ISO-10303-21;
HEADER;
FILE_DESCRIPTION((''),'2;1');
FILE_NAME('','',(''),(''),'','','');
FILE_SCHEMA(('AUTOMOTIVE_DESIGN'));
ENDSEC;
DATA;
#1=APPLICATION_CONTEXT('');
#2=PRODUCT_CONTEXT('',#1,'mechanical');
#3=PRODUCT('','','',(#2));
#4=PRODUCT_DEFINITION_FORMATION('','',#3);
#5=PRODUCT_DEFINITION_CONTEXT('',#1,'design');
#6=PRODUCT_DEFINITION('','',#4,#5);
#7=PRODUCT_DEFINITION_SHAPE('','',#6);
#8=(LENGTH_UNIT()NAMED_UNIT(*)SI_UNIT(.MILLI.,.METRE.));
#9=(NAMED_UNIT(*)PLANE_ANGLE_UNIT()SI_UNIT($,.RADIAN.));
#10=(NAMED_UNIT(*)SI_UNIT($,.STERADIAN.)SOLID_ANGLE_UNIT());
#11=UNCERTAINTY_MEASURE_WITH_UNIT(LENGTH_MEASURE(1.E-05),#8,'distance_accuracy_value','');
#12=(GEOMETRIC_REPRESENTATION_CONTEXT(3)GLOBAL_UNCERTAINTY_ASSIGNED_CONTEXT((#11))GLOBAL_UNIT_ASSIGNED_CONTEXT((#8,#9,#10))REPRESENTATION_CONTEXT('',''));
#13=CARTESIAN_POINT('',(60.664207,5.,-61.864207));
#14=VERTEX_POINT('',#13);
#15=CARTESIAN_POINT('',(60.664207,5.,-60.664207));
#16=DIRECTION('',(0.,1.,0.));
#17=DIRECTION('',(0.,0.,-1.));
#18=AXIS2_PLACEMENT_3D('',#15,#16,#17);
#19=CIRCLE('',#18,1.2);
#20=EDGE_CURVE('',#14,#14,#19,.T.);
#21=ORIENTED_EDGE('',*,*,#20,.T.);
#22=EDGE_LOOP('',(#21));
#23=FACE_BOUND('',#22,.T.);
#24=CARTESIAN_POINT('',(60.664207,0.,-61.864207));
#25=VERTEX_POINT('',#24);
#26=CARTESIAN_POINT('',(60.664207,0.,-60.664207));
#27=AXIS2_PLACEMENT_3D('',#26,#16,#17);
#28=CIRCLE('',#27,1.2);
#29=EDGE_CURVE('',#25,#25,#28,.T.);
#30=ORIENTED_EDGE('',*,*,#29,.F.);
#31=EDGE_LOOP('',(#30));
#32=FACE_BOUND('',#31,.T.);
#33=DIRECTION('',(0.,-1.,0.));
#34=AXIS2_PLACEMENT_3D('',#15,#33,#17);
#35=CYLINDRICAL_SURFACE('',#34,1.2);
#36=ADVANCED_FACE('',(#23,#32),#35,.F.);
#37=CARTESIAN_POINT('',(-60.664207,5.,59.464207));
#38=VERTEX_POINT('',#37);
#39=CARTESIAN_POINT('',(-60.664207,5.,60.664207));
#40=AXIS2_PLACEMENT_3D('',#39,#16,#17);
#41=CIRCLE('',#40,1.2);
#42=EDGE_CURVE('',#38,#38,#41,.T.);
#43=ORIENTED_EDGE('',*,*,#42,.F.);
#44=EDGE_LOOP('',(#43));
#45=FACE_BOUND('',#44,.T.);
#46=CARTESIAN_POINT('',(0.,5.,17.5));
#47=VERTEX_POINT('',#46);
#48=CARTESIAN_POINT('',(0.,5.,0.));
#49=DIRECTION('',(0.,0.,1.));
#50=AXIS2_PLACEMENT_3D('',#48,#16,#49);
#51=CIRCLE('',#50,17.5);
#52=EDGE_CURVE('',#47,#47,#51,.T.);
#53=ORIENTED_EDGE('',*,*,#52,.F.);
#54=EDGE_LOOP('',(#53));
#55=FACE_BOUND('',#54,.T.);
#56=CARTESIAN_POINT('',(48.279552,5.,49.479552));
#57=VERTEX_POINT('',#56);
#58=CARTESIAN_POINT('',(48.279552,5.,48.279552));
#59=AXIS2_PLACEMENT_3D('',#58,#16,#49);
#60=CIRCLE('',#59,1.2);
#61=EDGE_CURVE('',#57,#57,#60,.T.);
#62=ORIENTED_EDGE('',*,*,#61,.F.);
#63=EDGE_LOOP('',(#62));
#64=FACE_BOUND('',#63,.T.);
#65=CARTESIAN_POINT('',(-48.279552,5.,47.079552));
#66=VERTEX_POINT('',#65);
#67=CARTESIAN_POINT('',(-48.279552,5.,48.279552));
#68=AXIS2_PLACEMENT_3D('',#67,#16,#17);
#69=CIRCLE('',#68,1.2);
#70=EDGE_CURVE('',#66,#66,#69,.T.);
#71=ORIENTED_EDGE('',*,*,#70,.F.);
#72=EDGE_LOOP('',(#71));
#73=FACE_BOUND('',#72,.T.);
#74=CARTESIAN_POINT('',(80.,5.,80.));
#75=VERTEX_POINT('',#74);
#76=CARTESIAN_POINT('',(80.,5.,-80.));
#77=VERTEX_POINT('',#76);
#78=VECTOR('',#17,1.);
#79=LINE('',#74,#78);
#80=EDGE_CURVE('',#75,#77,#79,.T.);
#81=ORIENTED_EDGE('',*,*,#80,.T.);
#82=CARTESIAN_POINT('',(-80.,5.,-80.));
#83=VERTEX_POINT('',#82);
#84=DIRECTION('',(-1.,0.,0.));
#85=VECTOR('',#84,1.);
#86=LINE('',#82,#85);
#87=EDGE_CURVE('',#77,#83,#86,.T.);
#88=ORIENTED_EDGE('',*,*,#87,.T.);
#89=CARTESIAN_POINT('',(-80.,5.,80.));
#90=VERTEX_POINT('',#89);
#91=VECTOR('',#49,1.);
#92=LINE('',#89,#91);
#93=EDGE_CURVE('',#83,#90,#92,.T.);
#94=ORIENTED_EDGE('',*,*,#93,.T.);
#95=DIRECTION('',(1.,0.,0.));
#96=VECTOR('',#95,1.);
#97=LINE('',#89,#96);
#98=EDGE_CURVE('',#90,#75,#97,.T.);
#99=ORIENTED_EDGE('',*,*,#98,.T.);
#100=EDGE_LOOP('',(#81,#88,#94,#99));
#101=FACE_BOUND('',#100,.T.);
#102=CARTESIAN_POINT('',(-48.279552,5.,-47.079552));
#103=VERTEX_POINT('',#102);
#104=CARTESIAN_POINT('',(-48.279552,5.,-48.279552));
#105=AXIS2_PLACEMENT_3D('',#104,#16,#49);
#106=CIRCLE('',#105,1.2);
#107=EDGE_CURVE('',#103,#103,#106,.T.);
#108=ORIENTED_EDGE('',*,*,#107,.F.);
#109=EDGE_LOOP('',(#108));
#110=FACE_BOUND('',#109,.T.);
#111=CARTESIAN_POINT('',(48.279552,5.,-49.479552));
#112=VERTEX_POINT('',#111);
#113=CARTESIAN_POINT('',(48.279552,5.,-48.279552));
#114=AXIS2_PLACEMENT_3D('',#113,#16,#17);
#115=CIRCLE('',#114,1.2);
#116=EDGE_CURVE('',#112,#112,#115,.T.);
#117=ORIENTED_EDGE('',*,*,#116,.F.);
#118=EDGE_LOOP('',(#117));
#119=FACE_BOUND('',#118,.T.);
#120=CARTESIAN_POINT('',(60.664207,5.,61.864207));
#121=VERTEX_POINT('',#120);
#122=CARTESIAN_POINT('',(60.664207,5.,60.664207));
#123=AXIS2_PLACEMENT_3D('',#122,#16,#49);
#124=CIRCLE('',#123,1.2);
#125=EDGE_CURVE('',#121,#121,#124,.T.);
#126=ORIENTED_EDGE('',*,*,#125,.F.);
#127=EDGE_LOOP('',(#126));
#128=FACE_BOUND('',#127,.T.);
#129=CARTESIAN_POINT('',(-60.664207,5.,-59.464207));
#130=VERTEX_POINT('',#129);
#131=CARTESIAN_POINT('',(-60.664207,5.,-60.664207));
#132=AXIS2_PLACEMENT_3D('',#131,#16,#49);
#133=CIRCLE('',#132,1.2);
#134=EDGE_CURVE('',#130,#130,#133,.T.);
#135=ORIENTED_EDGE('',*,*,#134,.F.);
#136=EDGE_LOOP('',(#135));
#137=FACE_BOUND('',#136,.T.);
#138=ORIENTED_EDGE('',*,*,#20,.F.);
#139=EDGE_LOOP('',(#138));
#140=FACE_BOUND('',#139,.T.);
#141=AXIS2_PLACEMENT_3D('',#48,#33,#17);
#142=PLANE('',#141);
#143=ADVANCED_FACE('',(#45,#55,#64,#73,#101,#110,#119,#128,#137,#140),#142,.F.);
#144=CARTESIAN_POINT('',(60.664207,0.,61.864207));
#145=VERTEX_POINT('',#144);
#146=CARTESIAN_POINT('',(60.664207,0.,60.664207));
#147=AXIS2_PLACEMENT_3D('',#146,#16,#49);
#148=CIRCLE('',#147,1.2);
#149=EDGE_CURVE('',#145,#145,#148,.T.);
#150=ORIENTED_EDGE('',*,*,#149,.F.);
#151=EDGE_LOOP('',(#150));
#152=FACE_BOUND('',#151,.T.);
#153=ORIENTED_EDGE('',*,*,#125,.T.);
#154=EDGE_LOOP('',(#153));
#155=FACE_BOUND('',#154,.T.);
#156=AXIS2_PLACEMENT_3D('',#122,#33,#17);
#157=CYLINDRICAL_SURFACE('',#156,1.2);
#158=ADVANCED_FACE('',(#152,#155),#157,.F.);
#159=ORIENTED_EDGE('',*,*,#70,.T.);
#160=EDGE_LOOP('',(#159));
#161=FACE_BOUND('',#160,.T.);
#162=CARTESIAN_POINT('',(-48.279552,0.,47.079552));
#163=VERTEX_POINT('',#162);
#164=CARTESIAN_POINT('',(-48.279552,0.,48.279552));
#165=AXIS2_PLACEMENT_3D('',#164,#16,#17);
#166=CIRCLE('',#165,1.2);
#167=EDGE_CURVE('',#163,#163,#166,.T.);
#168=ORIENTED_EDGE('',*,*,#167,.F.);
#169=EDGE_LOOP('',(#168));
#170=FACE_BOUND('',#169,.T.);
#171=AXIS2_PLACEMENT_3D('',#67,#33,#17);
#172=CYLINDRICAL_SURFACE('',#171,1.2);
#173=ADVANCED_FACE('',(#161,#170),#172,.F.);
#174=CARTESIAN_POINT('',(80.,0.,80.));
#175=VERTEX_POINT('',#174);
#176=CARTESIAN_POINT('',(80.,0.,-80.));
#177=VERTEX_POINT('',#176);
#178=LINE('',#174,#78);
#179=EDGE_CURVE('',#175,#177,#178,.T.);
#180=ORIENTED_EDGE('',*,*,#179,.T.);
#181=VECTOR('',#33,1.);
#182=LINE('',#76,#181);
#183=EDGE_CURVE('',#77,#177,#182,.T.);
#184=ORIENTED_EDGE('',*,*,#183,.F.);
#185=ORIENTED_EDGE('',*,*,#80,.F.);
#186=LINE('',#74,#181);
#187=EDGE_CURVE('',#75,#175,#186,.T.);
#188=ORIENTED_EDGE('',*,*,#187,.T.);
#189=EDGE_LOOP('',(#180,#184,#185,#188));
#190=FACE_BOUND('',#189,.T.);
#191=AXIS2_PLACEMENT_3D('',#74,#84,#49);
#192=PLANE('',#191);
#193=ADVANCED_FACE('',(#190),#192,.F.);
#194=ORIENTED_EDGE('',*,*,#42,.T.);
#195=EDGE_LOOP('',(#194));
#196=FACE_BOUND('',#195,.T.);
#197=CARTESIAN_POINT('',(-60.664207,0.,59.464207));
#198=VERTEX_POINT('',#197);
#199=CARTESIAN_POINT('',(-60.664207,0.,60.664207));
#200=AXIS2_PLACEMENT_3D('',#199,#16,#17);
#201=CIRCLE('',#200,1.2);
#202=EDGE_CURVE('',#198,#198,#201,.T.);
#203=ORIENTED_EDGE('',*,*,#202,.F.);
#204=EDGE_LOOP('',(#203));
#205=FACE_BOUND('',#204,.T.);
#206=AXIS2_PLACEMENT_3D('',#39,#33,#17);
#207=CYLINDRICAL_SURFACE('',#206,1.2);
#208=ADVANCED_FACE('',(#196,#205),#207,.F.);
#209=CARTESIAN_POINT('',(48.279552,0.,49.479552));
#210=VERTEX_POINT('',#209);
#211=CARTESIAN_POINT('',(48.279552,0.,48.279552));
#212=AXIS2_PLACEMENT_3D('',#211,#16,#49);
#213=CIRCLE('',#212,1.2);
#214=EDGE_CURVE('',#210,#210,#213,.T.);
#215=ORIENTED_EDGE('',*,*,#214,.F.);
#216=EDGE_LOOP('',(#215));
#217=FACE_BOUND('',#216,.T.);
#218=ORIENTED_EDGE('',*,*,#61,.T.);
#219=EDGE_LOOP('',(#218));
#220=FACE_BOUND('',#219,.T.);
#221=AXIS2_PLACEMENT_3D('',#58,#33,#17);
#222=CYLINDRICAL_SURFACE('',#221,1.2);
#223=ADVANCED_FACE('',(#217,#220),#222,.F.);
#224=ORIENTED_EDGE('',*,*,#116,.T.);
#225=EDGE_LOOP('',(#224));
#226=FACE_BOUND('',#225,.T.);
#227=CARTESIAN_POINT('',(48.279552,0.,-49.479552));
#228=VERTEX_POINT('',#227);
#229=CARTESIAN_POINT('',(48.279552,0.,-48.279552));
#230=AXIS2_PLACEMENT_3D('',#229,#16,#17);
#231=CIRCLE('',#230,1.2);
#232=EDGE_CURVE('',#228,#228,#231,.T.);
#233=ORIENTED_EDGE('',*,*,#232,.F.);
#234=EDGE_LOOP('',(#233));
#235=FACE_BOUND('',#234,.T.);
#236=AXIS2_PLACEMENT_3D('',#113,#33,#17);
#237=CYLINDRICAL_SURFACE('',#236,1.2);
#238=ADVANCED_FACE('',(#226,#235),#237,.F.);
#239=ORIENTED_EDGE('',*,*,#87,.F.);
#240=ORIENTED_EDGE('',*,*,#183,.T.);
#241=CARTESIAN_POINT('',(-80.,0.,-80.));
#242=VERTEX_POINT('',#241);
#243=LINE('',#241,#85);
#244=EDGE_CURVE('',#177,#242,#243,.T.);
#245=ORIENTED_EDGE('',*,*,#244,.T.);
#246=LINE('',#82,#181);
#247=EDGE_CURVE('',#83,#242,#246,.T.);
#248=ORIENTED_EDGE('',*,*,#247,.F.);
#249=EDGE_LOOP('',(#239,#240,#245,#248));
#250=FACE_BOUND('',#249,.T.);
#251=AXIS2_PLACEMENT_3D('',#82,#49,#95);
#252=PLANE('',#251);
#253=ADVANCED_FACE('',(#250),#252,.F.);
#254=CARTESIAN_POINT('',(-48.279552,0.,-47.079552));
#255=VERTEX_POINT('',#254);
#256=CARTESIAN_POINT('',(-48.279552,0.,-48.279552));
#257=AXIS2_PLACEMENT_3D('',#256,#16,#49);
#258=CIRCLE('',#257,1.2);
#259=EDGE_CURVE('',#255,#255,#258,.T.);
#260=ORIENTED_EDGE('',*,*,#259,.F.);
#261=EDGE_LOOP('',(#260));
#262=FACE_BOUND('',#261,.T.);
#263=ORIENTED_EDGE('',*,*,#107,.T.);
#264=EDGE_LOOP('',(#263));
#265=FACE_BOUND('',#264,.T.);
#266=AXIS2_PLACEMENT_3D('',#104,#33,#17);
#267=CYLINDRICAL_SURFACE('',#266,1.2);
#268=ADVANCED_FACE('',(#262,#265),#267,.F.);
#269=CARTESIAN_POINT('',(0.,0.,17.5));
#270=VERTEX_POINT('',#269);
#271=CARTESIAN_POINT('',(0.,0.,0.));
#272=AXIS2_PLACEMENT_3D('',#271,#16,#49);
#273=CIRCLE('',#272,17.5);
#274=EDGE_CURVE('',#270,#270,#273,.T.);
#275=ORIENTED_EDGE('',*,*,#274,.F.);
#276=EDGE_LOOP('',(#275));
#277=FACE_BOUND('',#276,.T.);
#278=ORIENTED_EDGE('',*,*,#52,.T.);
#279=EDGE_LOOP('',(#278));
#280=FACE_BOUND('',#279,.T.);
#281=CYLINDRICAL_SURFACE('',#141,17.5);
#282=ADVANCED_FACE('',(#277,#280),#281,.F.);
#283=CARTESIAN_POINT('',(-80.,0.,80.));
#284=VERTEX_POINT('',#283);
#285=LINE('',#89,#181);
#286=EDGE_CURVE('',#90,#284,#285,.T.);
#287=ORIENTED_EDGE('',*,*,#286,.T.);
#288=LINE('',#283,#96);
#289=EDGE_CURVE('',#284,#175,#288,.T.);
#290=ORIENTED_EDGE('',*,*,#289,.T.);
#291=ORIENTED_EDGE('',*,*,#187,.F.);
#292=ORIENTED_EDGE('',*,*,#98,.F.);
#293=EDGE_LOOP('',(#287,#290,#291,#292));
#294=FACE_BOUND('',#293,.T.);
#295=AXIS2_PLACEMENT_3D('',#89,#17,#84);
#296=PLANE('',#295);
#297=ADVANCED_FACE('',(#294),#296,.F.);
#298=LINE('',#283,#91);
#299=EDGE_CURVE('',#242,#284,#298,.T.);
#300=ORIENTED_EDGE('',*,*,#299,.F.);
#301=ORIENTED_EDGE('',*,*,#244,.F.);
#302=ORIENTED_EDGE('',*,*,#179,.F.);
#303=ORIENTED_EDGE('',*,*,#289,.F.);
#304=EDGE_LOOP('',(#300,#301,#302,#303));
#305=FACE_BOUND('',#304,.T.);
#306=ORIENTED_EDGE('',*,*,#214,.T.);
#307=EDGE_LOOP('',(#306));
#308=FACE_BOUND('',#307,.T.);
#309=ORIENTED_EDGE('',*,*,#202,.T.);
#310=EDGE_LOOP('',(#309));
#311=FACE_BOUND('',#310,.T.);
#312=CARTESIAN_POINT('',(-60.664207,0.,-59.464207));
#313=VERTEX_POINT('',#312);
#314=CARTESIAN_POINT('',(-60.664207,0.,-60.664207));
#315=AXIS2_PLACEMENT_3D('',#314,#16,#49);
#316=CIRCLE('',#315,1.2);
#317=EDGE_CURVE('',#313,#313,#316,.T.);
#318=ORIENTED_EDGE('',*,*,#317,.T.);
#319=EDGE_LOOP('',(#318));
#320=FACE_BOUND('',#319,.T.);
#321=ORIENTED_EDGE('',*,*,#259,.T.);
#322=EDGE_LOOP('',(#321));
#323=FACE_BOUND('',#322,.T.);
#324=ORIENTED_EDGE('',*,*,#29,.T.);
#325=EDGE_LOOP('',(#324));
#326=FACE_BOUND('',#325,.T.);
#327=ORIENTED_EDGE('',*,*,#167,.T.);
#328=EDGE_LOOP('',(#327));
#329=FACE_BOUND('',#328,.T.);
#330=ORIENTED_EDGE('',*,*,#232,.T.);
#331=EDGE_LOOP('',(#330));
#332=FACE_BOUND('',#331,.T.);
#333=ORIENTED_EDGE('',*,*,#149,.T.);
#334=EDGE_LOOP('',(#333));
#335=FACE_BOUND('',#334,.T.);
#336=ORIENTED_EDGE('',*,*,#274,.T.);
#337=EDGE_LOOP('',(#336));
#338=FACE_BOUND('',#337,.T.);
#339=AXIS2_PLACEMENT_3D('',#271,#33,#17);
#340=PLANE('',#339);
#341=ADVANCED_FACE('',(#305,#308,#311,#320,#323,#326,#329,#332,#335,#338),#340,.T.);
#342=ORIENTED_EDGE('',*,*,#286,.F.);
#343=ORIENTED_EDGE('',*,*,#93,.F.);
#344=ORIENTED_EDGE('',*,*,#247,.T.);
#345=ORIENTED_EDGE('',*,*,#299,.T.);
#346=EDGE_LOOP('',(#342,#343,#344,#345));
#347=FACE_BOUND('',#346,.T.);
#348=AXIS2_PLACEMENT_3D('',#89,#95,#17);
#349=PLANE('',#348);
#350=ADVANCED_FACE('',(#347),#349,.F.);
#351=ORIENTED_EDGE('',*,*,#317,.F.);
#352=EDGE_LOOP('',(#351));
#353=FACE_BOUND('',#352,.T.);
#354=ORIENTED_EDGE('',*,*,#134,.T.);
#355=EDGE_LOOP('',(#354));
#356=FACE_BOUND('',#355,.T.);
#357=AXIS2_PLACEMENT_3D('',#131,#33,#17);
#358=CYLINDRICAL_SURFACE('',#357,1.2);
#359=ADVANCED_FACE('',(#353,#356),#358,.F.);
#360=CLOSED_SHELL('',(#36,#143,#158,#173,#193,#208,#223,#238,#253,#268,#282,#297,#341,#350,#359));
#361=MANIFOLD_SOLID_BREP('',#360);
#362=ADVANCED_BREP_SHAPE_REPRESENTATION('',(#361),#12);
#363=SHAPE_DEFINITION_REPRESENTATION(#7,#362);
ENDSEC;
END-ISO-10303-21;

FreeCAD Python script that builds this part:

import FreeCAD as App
import Part
import Sketcher
Q = App.Units.Quantity

doc = App.newDocument("Part")
body = doc.addObject("PartDesign::Body", "Body")

sketch1 = body.newObject("Sketcher::SketchObject", "Sketch")
sketch1.AttachmentSupport = (doc.getObject("XZ_Plane"), [""])
sketch1.MapMode = "FlatFace"
sketch1.addGeometry([
    Part.LineSegment(App.Vector(-80, -80, 0), App.Vector(-80, 80, 0)),
    Part.LineSegment(App.Vector(-80, 80, 0), App.Vector(80, 80, 0)),
    Part.LineSegment(App.Vector(80, 80, 0), App.Vector(80, -80, 0)),
    Part.LineSegment(App.Vector(80, -80, 0), App.Vector(-80, -80, 0)),
    Part.Circle(App.Vector(-60.7, 60.7, 0), App.Vector(0, 0, 1), 1.2),
    Part.Circle(App.Vector(-48.3, 48.3, 0), App.Vector(0, 0, 1), 1.2),
    Part.Circle(App.Vector(0, 0, 0), App.Vector(0, 0, 1), 17.5),
    Part.Circle(App.Vector(60.7, 60.7, 0), App.Vector(0, 0, 1), 1.2),
    Part.Circle(App.Vector(48.3, 48.3, 0), App.Vector(0, 0, 1), 1.2),
    Part.Circle(App.Vector(-48.3, -48.3, 0), App.Vector(0, 0, 1), 1.2),
    Part.Circle(App.Vector(-60.7, -60.7, 0), App.Vector(0, 0, 1), 1.2),
    Part.Circle(App.Vector(48.3, -48.3, 0), App.Vector(0, 0, 1), 1.2),
    Part.Circle(App.Vector(60.7, -60.7, 0), App.Vector(0, 0, 1), 1.2),
], False)
sketch1.addConstraint([
    Sketcher.Constraint("Coincident", 0, 2, 1, 1),
    Sketcher.Constraint("Coincident", 1, 2, 2, 1),
    Sketcher.Constraint("Coincident", 2, 2, 3, 1),
    Sketcher.Constraint("Coincident", 3, 2, 0, 1),
    Sketcher.Constraint("Vertical", 0),
    Sketcher.Constraint("Horizontal", 1),
    Sketcher.Constraint("Vertical", 2),
    Sketcher.Constraint("Horizontal", 3),
    Sketcher.Constraint("Coincident", 6, 3, -1, 1),
    Sketcher.Constraint("Equal", 4, 5),
    Sketcher.Constraint("Equal", 5, 7),
    Sketcher.Constraint("Equal", 7, 8),
    Sketcher.Constraint("Equal", 8, 9),
    Sketcher.Constraint("Equal", 9, 10),
    Sketcher.Constraint("Equal", 10, 11),
    Sketcher.Constraint("Equal", 11, 12),
    Sketcher.Constraint("Symmetric", 8, 3, 9, 3, -1, 1),
    Sketcher.Constraint("Symmetric", 7, 3, 10, 3, -1, 1),
    Sketcher.Constraint("Symmetric", 5, 3, 11, 3, -1, 1),
    Sketcher.Constraint("Symmetric", 4, 3, 12, 3, -1, 1),
    Sketcher.Constraint("Symmetric", 0, 2, 2, 2, -1, 1),
    Sketcher.Constraint("Symmetric", 4, 3, 7, 3, -2),
    Sketcher.Constraint("Symmetric", 5, 3, 8, 3, -2),
    Sketcher.Constraint("Equal", 3, 0),
    Sketcher.Constraint("Diameter", 6, Q("35 mm")),
    Sketcher.Constraint("Diameter", 4, Q("2.4 mm")),
    Sketcher.Constraint("DistanceX", 1, 1, 1, 2, Q("160 mm")),
    Sketcher.Constraint("DistanceX", 5, 3, 7, 3, Q("108.943759 mm")),
    Sketcher.Constraint("DistanceY", 9, 3, 4, 3, Q("108.943759 mm")),
    Sketcher.Constraint("DistanceX", 4, 3, -1, 1, Q("60.664207 mm")),
    Sketcher.Constraint("DistanceY", -1, 1, 4, 3, Q("60.664207 mm")),
])
pad1 = body.newObject("PartDesign::Pad", "Pad")
pad1.Profile = sketch1
pad1.Length = 5
pad1.Reversed = True

doc.recompute()
